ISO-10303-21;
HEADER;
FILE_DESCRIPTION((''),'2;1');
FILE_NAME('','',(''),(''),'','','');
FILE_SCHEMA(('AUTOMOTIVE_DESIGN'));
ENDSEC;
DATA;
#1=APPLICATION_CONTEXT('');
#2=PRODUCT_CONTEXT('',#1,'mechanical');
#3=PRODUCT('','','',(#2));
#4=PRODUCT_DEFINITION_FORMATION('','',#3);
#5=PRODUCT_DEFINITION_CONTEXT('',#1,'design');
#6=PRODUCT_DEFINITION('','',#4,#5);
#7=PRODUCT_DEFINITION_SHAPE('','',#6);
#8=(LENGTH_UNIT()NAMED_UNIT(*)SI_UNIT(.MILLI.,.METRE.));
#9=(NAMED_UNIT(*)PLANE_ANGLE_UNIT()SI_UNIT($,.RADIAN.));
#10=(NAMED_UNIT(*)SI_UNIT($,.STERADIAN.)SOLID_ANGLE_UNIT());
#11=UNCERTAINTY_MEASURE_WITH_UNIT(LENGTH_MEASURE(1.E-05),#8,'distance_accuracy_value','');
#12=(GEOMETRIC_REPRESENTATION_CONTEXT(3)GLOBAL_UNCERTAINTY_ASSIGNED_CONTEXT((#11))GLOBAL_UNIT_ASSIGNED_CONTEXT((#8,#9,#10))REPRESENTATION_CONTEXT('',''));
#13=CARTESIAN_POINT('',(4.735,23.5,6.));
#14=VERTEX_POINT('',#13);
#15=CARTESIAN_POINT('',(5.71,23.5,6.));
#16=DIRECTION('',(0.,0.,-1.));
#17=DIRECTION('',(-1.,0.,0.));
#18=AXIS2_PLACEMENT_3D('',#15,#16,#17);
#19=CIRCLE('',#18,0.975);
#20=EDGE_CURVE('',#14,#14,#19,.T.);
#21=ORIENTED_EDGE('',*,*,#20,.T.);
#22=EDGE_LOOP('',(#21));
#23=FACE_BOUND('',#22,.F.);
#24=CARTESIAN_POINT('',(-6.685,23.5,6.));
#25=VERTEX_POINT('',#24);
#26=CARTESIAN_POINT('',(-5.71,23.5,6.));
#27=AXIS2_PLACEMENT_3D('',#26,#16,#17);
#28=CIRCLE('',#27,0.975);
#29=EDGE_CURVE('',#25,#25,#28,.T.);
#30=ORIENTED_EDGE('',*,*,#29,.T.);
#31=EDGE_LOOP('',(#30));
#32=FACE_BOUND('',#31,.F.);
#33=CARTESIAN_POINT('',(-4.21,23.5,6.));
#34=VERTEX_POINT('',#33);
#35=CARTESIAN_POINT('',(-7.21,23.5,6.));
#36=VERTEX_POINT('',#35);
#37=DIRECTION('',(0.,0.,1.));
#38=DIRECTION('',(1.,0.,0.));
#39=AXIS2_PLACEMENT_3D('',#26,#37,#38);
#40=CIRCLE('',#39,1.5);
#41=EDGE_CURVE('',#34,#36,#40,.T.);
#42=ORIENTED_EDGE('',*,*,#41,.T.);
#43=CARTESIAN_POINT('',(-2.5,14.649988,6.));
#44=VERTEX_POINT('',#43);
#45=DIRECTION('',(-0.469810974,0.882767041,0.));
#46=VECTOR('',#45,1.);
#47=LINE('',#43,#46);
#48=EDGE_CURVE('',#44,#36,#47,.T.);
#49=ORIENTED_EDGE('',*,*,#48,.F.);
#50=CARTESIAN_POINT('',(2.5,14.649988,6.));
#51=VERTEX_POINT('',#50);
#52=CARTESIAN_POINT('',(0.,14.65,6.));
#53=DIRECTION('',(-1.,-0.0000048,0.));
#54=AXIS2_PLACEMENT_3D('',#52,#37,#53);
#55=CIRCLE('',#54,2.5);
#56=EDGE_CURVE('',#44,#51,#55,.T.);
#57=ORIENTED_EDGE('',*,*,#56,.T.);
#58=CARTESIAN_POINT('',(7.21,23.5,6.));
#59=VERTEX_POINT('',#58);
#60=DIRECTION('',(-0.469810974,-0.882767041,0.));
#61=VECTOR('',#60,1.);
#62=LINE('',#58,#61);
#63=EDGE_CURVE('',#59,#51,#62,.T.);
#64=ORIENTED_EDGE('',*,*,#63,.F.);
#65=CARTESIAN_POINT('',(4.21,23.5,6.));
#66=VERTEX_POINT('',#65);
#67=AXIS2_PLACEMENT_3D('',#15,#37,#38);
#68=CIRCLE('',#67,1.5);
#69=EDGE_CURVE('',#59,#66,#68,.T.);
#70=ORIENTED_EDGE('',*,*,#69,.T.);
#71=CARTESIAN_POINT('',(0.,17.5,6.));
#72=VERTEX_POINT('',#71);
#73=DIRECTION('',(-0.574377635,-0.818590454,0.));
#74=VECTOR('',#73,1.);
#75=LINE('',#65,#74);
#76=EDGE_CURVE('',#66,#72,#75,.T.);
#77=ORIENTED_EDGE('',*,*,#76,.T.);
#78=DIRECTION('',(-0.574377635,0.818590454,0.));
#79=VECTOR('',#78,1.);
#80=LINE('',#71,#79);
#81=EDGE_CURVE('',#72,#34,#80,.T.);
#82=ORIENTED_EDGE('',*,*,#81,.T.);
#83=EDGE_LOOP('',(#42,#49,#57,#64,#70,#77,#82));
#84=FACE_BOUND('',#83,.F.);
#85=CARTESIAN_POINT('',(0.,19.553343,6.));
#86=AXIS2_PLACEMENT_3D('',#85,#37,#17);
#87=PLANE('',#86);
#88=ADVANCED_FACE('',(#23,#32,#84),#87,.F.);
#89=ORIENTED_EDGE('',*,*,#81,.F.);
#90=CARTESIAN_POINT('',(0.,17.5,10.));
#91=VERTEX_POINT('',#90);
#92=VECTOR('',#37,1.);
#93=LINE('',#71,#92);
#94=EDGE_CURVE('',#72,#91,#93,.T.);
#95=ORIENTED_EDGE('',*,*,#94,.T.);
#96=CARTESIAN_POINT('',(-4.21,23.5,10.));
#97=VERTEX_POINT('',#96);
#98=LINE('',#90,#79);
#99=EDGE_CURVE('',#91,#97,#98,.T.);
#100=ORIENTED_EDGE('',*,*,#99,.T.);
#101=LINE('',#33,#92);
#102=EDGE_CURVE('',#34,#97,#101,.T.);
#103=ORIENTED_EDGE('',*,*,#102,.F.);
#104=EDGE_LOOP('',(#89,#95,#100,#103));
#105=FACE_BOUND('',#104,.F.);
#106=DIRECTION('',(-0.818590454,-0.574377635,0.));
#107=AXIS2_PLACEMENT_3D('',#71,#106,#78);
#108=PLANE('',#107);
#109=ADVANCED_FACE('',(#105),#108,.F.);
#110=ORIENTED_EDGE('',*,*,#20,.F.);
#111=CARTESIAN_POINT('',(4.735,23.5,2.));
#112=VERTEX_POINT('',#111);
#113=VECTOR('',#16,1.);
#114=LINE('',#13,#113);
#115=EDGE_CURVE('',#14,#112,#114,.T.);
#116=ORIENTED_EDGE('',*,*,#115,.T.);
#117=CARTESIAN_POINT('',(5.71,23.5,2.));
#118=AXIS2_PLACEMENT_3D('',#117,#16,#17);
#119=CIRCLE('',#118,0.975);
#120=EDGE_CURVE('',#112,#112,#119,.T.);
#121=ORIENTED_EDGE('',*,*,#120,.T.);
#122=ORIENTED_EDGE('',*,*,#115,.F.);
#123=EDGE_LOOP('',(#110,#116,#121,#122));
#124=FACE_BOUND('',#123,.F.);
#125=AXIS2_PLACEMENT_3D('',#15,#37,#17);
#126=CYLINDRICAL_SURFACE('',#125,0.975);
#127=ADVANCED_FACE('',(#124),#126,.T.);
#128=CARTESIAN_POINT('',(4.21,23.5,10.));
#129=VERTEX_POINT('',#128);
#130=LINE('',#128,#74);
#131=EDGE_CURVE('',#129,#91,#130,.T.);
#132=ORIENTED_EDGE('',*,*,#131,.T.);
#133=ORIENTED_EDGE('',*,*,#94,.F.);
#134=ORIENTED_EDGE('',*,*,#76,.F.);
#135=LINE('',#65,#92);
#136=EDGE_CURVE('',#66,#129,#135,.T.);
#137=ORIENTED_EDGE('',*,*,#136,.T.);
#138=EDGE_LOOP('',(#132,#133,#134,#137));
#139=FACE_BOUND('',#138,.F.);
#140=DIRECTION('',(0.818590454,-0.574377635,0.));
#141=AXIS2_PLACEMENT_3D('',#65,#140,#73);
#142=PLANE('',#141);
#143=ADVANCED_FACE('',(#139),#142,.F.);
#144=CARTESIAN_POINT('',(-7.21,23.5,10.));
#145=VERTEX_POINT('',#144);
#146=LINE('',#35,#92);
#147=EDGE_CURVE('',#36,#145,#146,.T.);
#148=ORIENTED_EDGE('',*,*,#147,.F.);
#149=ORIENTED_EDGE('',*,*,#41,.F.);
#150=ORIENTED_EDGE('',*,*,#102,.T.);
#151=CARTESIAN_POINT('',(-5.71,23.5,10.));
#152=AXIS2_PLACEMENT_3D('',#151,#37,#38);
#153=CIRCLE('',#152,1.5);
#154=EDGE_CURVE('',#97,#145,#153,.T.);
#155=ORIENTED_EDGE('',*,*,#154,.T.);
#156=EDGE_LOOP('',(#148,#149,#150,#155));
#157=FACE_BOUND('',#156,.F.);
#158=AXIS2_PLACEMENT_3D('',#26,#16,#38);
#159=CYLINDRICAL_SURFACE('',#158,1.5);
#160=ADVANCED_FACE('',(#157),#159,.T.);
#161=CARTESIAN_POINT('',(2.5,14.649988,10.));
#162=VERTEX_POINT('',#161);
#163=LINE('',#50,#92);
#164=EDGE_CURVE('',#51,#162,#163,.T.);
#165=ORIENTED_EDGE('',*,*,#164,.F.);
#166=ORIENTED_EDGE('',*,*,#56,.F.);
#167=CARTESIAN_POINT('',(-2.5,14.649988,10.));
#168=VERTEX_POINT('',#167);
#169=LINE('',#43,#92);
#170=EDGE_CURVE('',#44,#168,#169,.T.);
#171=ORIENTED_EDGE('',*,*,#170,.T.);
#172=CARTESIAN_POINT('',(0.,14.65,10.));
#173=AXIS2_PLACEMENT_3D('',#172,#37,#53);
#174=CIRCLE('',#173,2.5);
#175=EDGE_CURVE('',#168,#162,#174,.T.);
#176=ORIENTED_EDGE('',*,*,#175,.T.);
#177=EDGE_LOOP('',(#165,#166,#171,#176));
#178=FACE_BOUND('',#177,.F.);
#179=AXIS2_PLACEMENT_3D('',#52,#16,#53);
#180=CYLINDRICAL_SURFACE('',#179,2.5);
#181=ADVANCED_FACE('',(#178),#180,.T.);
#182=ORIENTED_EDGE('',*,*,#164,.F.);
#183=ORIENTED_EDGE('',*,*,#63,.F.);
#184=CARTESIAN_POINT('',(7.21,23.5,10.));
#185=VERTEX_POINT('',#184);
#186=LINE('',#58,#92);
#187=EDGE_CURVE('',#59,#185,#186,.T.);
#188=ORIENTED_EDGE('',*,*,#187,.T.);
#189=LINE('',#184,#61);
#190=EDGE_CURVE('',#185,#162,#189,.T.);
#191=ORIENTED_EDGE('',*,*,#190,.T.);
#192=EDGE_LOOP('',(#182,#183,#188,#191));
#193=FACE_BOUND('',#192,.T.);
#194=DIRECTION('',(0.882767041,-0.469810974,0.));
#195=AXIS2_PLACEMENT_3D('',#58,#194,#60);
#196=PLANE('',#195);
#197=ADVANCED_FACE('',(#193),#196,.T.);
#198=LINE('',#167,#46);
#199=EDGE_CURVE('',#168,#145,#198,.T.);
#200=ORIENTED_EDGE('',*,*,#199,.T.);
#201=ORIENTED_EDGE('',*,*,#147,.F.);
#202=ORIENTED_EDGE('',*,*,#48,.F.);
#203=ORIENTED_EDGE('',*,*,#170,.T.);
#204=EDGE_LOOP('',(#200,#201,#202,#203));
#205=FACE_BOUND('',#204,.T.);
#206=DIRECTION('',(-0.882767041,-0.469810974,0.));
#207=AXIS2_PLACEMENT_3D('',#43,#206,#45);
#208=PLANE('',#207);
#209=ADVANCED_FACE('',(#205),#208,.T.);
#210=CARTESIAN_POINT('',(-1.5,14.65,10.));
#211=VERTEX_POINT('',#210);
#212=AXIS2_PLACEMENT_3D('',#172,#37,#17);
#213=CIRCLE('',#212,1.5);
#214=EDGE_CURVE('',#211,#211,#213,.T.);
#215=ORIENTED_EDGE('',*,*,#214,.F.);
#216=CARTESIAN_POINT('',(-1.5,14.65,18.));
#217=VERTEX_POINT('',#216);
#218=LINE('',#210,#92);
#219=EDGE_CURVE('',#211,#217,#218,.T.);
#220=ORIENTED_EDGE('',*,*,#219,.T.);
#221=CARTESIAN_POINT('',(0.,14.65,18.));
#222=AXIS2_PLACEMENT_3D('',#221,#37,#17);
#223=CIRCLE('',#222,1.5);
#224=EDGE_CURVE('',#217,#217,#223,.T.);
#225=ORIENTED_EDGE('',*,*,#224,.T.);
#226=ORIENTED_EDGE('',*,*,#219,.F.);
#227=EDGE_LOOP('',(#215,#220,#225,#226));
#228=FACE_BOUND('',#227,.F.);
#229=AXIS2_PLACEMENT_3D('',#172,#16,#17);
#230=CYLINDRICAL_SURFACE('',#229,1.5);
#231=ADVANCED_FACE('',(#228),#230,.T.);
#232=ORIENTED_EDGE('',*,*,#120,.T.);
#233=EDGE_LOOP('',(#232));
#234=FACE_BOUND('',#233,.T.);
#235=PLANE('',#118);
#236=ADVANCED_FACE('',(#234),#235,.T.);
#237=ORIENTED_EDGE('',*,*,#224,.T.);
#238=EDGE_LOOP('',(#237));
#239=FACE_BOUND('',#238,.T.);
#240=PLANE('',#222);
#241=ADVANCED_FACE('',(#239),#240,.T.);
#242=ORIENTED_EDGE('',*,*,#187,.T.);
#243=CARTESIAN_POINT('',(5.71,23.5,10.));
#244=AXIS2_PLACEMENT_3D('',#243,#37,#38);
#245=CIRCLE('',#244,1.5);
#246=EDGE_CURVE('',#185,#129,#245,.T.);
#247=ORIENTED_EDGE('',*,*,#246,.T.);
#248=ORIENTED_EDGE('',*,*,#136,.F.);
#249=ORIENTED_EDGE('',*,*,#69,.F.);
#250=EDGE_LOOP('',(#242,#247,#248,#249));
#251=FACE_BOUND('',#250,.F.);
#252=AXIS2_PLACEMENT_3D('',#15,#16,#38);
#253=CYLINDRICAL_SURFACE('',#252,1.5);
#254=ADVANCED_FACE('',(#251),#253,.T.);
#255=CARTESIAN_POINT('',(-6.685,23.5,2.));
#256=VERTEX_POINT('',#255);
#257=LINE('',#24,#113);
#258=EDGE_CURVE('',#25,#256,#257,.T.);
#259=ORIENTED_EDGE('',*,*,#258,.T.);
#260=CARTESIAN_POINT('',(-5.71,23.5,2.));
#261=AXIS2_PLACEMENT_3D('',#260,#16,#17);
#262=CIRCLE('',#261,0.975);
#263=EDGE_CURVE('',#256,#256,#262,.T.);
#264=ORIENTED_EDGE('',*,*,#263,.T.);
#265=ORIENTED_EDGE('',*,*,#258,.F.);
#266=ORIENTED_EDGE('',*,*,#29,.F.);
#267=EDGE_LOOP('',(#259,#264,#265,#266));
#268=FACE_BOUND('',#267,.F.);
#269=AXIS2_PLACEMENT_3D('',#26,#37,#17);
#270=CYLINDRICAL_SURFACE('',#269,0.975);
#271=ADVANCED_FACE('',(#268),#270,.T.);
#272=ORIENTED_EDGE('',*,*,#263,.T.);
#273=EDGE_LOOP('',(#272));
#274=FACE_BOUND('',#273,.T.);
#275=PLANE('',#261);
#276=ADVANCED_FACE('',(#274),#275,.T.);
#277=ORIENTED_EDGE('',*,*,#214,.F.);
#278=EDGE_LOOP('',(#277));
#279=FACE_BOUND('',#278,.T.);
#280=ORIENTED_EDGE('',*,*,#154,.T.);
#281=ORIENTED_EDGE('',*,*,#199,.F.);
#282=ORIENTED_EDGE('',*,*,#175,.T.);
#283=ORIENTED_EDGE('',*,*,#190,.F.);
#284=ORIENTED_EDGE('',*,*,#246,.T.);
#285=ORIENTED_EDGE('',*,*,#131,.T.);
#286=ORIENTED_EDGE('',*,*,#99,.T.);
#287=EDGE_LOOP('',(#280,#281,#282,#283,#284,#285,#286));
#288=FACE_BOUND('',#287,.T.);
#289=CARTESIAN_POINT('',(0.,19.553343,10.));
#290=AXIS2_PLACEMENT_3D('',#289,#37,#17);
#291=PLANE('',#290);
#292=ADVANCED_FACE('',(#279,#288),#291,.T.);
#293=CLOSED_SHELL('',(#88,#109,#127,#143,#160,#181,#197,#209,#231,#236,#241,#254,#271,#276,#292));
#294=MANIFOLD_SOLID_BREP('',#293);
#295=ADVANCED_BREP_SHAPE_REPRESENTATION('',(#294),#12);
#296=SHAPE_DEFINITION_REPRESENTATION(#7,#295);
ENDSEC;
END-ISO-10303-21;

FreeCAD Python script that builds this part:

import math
import FreeCAD as App
import Part
import Sketcher

V = App.Vector
Q = App.Units.Quantity

doc = App.newDocument("Part")
body = doc.addObject("PartDesign::Body", "Body")

sketch1 = body.newObject("Sketcher::SketchObject", "Sketch")
sketch1.AttachmentSupport = (doc.getObject("XY_Plane"), [""])
sketch1.MapMode = "FlatFace"
sketch1.addGeometry([
    Part.ArcOfCircle(Part.Circle(V(5.71, 0, 0), V(0, 0, 1), 1.5), math.radians(180), math.radians(360)),
    Part.LineSegment(V(7.21, 0, 0), V(2.5, 8.850012, 0)),
    Part.ArcOfCircle(Part.Circle(V(0, 8.85, 0), V(0, 0, 1), 2.5), math.radians(0.000275), math.radians(179.999725)),
    Part.LineSegment(V(-2.5, 8.850012, 0), V(-7.21, 0, 0)),
    Part.ArcOfCircle(Part.Circle(V(-5.71, 0, 0), V(0, 0, 1), 1.5), math.radians(180), math.radians(360)),
    Part.LineSegment(V(-4.21, 0, 0), V(0, 6, 0)),
    Part.LineSegment(V(0, 6, 0), V(4.21, 0, 0)),
], False)
sketch1.addConstraint([
    Sketcher.Constraint("Coincident", 0, 2, 1, 1),
    Sketcher.Constraint("Coincident", 1, 2, 2, 1),
    Sketcher.Constraint("Coincident", 2, 2, 3, 1),
    Sketcher.Constraint("Coincident", 3, 2, 4, 1),
    Sketcher.Constraint("Coincident", 4, 2, 5, 1),
    Sketcher.Constraint("Coincident", 5, 2, 6, 1),
    Sketcher.Constraint("Coincident", 6, 2, 0, 1),
    Sketcher.Constraint("Equal", 0, 4),
    Sketcher.Constraint("Symmetric", 0, 3, 4, 3, -1, 1),
    Sketcher.Constraint("Symmetric", 1, 2, 2, 2, -2),
    Sketcher.Constraint("PointOnObject", 0, 3, -1),
    Sketcher.Constraint("PointOnObject", 0, 2, -1),
    Sketcher.Constraint("PointOnObject", 3, 2, -1),
    Sketcher.Constraint("PointOnObject", 4, 2, -1),
    Sketcher.Constraint("PointOnObject", 5, 2, -2),
    Sketcher.Constraint("PointOnObject", 6, 2, -1),
    Sketcher.Constraint("Radius", 0, Q("1.5 mm")),
    Sketcher.Constraint("Radius", 2, Q("2.5 mm")),
    Sketcher.Constraint("DistanceY", -1, 1, 5, 2, Q("6 mm")),
    Sketcher.Constraint("DistanceX", -1, 1, 0, 3, Q("5.71 mm")),
    Sketcher.Constraint("DistanceY", -1, 1, 2, 3, Q("8.85 mm")),
    Sketcher.Constraint("Distance", 1, Q("10.025309 mm")),
])
pad1 = body.newObject("PartDesign::Pad", "Pad")
pad1.Profile = sketch1
pad1.Length = 4

sketch2 = body.newObject("Sketcher::SketchObject", "Sketch001")
sketch2.AttachmentSupport = (doc.getObject("XY_Plane"), [""])
sketch2.MapMode = "FlatFace"
sketch2.AttachmentOffset = App.Placement(V(0, 0, 4), App.Rotation())
sketch2.addGeometry(Part.Circle(V(0, 8.85, 0), V(0, 0, 1), 1.5), False)
sketch2.addConstraint([
    Sketcher.Constraint("PointOnObject", 0, 3, -2),
    Sketcher.Constraint("Diameter", 0, Q("3 mm")),
    Sketcher.Constraint("DistanceY", -1, 1, 0, 3, Q("8.85 mm")),
])
pad2 = body.newObject("PartDesign::Pad", "Pad001")
pad2.Profile = sketch2
pad2.Length = 8

sketch3 = body.newObject("Sketcher::SketchObject", "Sketch002")
sketch3.AttachmentSupport = (doc.getObject("XY_Plane"), [""])
sketch3.MapMode = "FlatFace"
sketch3.addGeometry([
    Part.Circle(V(-5.71, 0, 0), V(0, 0, 1), 0.975),
    Part.Circle(V(5.71, 0, 0), V(0, 0, 1), 0.975),
], False)
sketch3.addConstraint([
    Sketcher.Constraint("Equal", 0, 1),
    Sketcher.Constraint("Symmetric", 0, 3, 1, 3, -1, 1),
    Sketcher.Constraint("PointOnObject", 0, 3, -1),
    Sketcher.Constraint("Diameter", 0, Q("1.95 mm")),
    Sketcher.Constraint("DistanceX", 0, 3, -1, 1, Q("5.71 mm")),
])
pad3 = body.newObject("PartDesign::Pad", "Pad002")
pad3.Profile = sketch3
pad3.Length = 4
pad3.Reversed = True
body2 = doc.addObject("PartDesign::Body", "Body001")
doc.recompute()

body.Placement = App.Placement(V(0, 23.5, 6), App.Rotation(V(0, 0, 1), 180))
boolean = body2.newObject("PartDesign::Boolean", "Boolean")
boolean.Type = "Fuse"
boolean.addObjects([body])

doc.recompute()
